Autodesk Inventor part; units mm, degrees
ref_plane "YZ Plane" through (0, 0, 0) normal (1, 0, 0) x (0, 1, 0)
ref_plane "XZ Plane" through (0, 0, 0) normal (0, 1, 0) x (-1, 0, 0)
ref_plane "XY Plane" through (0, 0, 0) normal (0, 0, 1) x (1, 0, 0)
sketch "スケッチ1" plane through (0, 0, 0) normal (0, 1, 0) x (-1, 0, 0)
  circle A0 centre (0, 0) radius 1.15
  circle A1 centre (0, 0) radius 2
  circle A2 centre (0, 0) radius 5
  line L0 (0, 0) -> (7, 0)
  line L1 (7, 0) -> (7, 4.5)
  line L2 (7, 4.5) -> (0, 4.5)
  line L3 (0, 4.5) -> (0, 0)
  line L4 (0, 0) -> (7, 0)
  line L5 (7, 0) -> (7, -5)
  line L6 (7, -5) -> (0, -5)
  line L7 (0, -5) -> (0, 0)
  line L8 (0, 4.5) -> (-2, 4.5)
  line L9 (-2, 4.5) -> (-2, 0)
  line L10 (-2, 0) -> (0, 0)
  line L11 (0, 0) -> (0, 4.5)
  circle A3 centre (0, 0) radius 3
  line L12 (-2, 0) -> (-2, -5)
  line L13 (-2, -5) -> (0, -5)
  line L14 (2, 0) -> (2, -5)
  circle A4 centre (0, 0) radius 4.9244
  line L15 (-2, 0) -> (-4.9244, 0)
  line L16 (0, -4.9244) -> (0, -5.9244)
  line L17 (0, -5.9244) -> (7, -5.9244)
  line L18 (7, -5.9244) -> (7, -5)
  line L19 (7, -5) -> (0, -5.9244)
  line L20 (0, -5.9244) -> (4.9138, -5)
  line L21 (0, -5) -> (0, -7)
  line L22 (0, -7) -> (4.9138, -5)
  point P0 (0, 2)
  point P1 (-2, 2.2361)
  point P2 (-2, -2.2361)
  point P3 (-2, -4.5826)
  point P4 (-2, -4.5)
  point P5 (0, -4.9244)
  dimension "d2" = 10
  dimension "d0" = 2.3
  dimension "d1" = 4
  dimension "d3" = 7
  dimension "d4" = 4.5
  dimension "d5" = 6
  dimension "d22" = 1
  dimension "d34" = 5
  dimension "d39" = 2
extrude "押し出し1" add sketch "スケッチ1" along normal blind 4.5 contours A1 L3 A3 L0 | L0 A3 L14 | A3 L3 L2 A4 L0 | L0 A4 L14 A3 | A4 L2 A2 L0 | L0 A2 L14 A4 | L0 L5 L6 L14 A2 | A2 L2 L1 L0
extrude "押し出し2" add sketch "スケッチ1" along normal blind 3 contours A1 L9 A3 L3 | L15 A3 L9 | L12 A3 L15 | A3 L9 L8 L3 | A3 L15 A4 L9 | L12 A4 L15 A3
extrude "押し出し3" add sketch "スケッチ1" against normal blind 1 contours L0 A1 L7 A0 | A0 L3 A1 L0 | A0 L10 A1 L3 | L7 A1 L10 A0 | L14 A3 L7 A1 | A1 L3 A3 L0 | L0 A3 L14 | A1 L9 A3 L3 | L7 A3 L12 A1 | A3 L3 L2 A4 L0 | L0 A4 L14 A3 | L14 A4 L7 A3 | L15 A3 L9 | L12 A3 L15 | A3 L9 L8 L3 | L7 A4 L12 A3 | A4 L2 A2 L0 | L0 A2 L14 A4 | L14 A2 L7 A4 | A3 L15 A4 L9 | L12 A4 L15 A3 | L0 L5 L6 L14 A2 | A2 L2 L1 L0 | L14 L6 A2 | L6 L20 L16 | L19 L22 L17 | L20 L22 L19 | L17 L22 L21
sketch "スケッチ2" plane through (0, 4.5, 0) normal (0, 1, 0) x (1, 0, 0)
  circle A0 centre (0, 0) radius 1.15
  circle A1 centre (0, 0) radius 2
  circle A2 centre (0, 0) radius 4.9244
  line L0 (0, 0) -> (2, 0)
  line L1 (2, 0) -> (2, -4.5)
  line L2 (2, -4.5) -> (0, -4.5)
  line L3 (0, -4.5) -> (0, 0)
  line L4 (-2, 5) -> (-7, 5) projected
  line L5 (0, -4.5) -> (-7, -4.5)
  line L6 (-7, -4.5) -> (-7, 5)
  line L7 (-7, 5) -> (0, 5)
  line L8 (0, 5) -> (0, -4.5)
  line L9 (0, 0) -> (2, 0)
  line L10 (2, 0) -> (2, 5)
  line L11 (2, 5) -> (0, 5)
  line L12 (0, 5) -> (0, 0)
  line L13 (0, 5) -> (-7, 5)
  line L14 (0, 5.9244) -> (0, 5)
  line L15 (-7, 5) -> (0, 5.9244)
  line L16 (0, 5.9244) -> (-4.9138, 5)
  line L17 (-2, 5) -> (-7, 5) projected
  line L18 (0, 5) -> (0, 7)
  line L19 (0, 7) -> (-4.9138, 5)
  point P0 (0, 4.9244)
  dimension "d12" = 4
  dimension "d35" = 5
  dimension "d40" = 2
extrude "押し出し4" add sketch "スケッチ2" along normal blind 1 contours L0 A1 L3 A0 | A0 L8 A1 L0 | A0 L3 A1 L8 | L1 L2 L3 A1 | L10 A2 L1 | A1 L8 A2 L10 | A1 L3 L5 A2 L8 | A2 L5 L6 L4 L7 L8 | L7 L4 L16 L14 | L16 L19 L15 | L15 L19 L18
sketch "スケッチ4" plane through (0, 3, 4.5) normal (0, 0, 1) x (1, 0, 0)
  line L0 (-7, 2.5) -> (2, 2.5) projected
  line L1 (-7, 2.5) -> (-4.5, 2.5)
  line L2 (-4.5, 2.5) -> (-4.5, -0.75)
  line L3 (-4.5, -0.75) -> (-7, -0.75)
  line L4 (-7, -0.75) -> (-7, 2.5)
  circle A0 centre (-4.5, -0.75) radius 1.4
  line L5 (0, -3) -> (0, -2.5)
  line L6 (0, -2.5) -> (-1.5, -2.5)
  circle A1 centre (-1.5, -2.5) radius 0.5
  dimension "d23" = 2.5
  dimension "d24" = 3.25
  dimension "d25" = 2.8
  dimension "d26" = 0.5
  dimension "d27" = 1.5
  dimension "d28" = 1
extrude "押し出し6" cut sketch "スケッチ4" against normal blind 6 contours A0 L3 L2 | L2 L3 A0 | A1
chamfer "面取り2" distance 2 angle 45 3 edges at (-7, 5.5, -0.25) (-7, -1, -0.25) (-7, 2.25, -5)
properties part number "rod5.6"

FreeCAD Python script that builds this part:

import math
import FreeCAD as App
import Part
import Sketcher

V = App.Vector
Q = App.Units.Quantity


def edges_at(feature, points):
    """Names of the edges that pass closest to the given points."""
    edges = feature.Shape.Edges
    near = lambda p: min(range(len(edges)), key=lambda i: edges[i].distToShape(Part.Vertex(*p))[0])
    return sorted({f"Edge{near(p) + 1}" for p in points})

doc = App.newDocument("Part")
body = doc.addObject("PartDesign::Body", "Body")

sketch1 = doc.addObject("Sketcher::SketchObject", "Sketch")
body.addObject(sketch1)
sketch1.AttachmentSupport = (doc.XZ_Plane, [""])
sketch1.MapMode = "FlatFace"
sketch1.addGeometry(Part.ArcOfCircle(Part.Circle(V(0, 0, 0), V(0, 0, 1), 2), math.radians(90), math.radians(180)), False)
sketch1.addGeometry(Part.LineSegment(V(-2, 0, 0), V(-2, -5, 0)), False)
sketch1.addGeometry(Part.LineSegment(V(-2, -5, 0), V(-7, -5, 0)), False)
sketch1.addGeometry(Part.LineSegment(V(-7, -5, 0), V(-7, 4.5, 0)), False)
sketch1.addGeometry(Part.LineSegment(V(-7, 4.5, 0), V(0, 4.5, 0)), False)
sketch1.addGeometry(Part.LineSegment(V(0, 4.5, 0), V(0, 2, 0)), False)
sketch1.addConstraint(Sketcher.Constraint("Tangent", 0, 2, 1, 1))
sketch1.addConstraint(Sketcher.Constraint("Coincident", 1, 2, 2, 1))
sketch1.addConstraint(Sketcher.Constraint("Coincident", 2, 2, 3, 1))
sketch1.addConstraint(Sketcher.Constraint("Coincident", 3, 2, 4, 1))
sketch1.addConstraint(Sketcher.Constraint("Coincident", 4, 2, 5, 1))
sketch1.addConstraint(Sketcher.Constraint("Coincident", 5, 2, 0, 1))
sketch1.addConstraint(Sketcher.Constraint("Vertical", 1))
sketch1.addConstraint(Sketcher.Constraint("Horizontal", 2))
sketch1.addConstraint(Sketcher.Constraint("Vertical", 3))
sketch1.addConstraint(Sketcher.Constraint("Horizontal", 4))
sketch1.addConstraint(Sketcher.Constraint("Vertical", 5))
sketch1.addConstraint(Sketcher.Constraint("Coincident", 0, 3, -1, 1))
sketch1.addConstraint(Sketcher.Constraint("PointOnObject", 4, 2, -2))
sketch1.addConstraint(Sketcher.Constraint("Equal", 2, 1))
sketch1.addConstraint(Sketcher.Constraint("Radius", 0, Q("2 mm")))
sketch1.addConstraint(Sketcher.Constraint("DistanceX", 2, 2, 2, 1, Q("5 mm")))
sketch1.addConstraint(Sketcher.Constraint("DistanceY", -1, 1, 3, 2, Q("4.5 mm")))
pad1 = doc.addObject("PartDesign::Pad", "Pad")
body.addObject(pad1)
pad1.Profile = sketch1
pad1.Length = 4.5
pad1.Reversed = True

sketch2 = doc.addObject("Sketcher::SketchObject", "Sketch001")
body.addObject(sketch2)
sketch2.AttachmentSupport = (doc.XZ_Plane, [""])
sketch2.MapMode = "FlatFace"
sketch2.addGeometry(Part.ArcOfCircle(Part.Circle(V(0, 0, 0), V(0, 0, 1), 2), math.radians(0), math.radians(90)), False)
sketch2.addGeometry(Part.LineSegment(V(0, 2, 0), V(0, 4.5, 0)), False)
sketch2.addGeometry(Part.LineSegment(V(0, 4.5, 0), V(2, 4.5, 0)), False)
sketch2.addGeometry(Part.ArcOfCircle(Part.Circle(V(0, 0, 0), V(0, 0, 1), 4.9), math.radians(-66), math.radians(66)), False)
sketch2.addGeometry(Part.LineSegment(V(2, -4.5, 0), V(2, 0, 0)), False)
sketch2.addConstraint(Sketcher.Constraint("Coincident", 0, 2, 1, 1))
sketch2.addConstraint(Sketcher.Constraint("Coincident", 1, 2, 2, 1))
sketch2.addConstraint(Sketcher.Constraint("Coincident", 2, 2, 3, 2))
sketch2.addConstraint(Sketcher.Constraint("Coincident", 3, 1, 4, 1))
sketch2.addConstraint(Sketcher.Constraint("Tangent", 4, 2, 0, 1))
sketch2.addConstraint(Sketcher.Constraint("Vertical", 1))
sketch2.addConstraint(Sketcher.Constraint("Horizontal", 2))
sketch2.addConstraint(Sketcher.Constraint("Vertical", 4))
sketch2.addConstraint(Sketcher.Constraint("Coincident", 0, 3, -1, 1))
sketch2.addConstraint(Sketcher.Constraint("Coincident", 3, 3, -1, 1))
sketch2.addConstraint(Sketcher.Constraint("PointOnObject", 0, 2, -2))
sketch2.addConstraint(Sketcher.Constraint("Vertical", 2, 2, 3, 1))
sketch2.addConstraint(Sketcher.Constraint("Radius", 0, Q("2 mm")))
sketch2.addConstraint(Sketcher.Constraint("DistanceY", 4, 1, 4, 2, Q("4.5 mm")))
pad2 = doc.addObject("PartDesign::Pad", "Pad001")
body.addObject(pad2)
pad2.Profile = sketch2
pad2.Length = 3
pad2.Reversed = True

sketch3 = doc.addObject("Sketcher::SketchObject", "Sketch002")
body.addObject(sketch3)
sketch3.AttachmentSupport = (doc.XZ_Plane, [""])
sketch3.MapMode = "FlatFace"
sketch3.addGeometry(Part.ArcOfCircle(Part.Circle(V(0, 0, 0), V(0, 0, 1), 4.9), math.radians(-90), math.radians(66)), False)
sketch3.addGeometry(Part.LineSegment(V(0, -4.9, 0), V(0, -7, 0)), False)
sketch3.addGeometry(Part.LineSegment(V(0, -7, 0), V(-4.9, -5, 0)), False)
sketch3.addGeometry(Part.LineSegment(V(-4.9, -5, 0), V(-7, -5, 0)), False)
sketch3.addGeometry(Part.LineSegment(V(-7, -5, 0), V(-7, 4.5, 0)), False)
sketch3.addGeometry(Part.LineSegment(V(-7, 4.5, 0), V(2, 4.5, 0)), False)
sketch3.addGeometry(Part.Circle(V(0, 0, 0), V(0, 0, 1), 1.1), False)
sketch3.addConstraint(Sketcher.Constraint("Coincident", 0, 1, 1, 1))
sketch3.addConstraint(Sketcher.Constraint("Coincident", 1, 2, 2, 1))
sketch3.addConstraint(Sketcher.Constraint("Coincident", 2, 2, 3, 1))
sketch3.addConstraint(Sketcher.Constraint("Coincident", 3, 2, 4, 1))
sketch3.addConstraint(Sketcher.Constraint("Coincident", 4, 2, 5, 1))
sketch3.addConstraint(Sketcher.Constraint("Coincident", 5, 2, 0, 2))
sketch3.addConstraint(Sketcher.Constraint("Vertical", 1))
sketch3.addConstraint(Sketcher.Constraint("Horizontal", 3))
sketch3.addConstraint(Sketcher.Constraint("Vertical", 4))
sketch3.addConstraint(Sketcher.Constraint("Horizontal", 5))
sketch3.addConstraint(Sketcher.Constraint("Coincident", 0, 3, -1, 1))
sketch3.addConstraint(Sketcher.Constraint("Coincident", 6, 3, -1, 1))
sketch3.addConstraint(Sketcher.Constraint("PointOnObject", 0, 1, -2))
sketch3.addConstraint(Sketcher.Constraint("Diameter", 6, Q("2.3 mm")))
sketch3.addConstraint(Sketcher.Constraint("DistanceY", 1, 2, -1, 1, Q("7 mm")))
sketch3.addConstraint(Sketcher.Constraint("DistanceY", 2, 2, -1, 1, Q("5 mm")))
sketch3.addConstraint(Sketcher.Constraint("DistanceX", 3, 2, -1, 1, Q("7 mm")))
sketch3.addConstraint(Sketcher.Constraint("DistanceX", -1, 1, 5, 2, Q("2 mm")))
sketch3.addConstraint(Sketcher.Constraint("DistanceY", -1, 1, 4, 2, Q("4.5 mm")))
sketch3.addConstraint(Sketcher.Constraint("DistanceX", 3, 2, 3, 1, Q("2.0862 mm")))
pad3 = doc.addObject("PartDesign::Pad", "Pad002")
body.addObject(pad3)
pad3.Profile = sketch3
pad3.Length = 1

sketch4 = doc.addObject("Sketcher::SketchObject", "Sketch003")
body.addObject(sketch4)
sketch4.AttachmentSupport = (doc.XZ_Plane, [""])
sketch4.MapMode = "FlatFace"
sketch4.AttachmentOffset = App.Placement(V(0, 0, -4.5), App.Rotation())
sketch4.addGeometry(Part.ArcOfCircle(Part.Circle(V(0, 0, 0), V(0, 0, 1), 4.9), math.radians(-90), math.radians(66)), False)
sketch4.addGeometry(Part.LineSegment(V(0, -4.9, 0), V(0, -7, 0)), False)
sketch4.addGeometry(Part.LineSegment(V(0, -7, 0), V(-4.9, -5, 0)), False)
sketch4.addGeometry(Part.LineSegment(V(-4.9, -5, 0), V(-7, -5, 0)), False)
sketch4.addGeometry(Part.LineSegment(V(-7, -5, 0), V(-7, 4.5, 0)), False)
sketch4.addGeometry(Part.LineSegment(V(-7, 4.5, 0), V(2, 4.5, 0)), False)
sketch4.addGeometry(Part.Circle(V(0, 0, 0), V(0, 0, 1), 1.1), False)
sketch4.addConstraint(Sketcher.Constraint("Coincident", 0, 1, 1, 1))
sketch4.addConstraint(Sketcher.Constraint("Coincident", 1, 2, 2, 1))
sketch4.addConstraint(Sketcher.Constraint("Coincident", 2, 2, 3, 1))
sketch4.addConstraint(Sketcher.Constraint("Coincident", 3, 2, 4, 1))
sketch4.addConstraint(Sketcher.Constraint("Coincident", 4, 2, 5, 1))
sketch4.addConstraint(Sketcher.Constraint("Coincident", 5, 2, 0, 2))
sketch4.addConstraint(Sketcher.Constraint("Vertical", 1))
sketch4.addConstraint(Sketcher.Constraint("Horizontal", 3))
sketch4.addConstraint(Sketcher.Constraint("Vertical", 4))
sketch4.addConstraint(Sketcher.Constraint("Horizontal", 5))
sketch4.addConstraint(Sketcher.Constraint("Coincident", 0, 3, -1, 1))
sketch4.addConstraint(Sketcher.Constraint("Coincident", 6, 3, -1, 1))
sketch4.addConstraint(Sketcher.Constraint("PointOnObject", 0, 1, -2))
sketch4.addConstraint(Sketcher.Constraint("DistanceY", 2, 2, -1, 1, Q("5 mm")))
sketch4.addConstraint(Sketcher.Constraint("DistanceX", -1, 1, 5, 2, Q("2 mm")))
sketch4.addConstraint(Sketcher.Constraint("DistanceY", 1, 2, 2, 2, Q("2 mm")))
sketch4.addConstraint(Sketcher.Constraint("Diameter", 6, Q("2.3 mm")))
sketch4.addConstraint(Sketcher.Constraint("DistanceX", 5, 1, 5, 2, Q("9 mm")))
sketch4.addConstraint(Sketcher.Constraint("DistanceY", 4, 1, 4, 2, Q("9.5 mm")))
sketch4.addConstraint(Sketcher.Constraint("DistanceX", 3, 2, 3, 1, Q("2.0862 mm")))
pad4 = doc.addObject("PartDesign::Pad", "Pad003")
body.addObject(pad4)
pad4.Profile = sketch4
pad4.Length = 1
pad4.Reversed = True

sketch5 = doc.addObject("Sketcher::SketchObject", "Sketch004")
body.addObject(sketch5)
sketch5.AttachmentSupport = (doc.XY_Plane, [""])
sketch5.MapMode = "FlatFace"
sketch5.AttachmentOffset = App.Placement(V(0, 0, 4.5), App.Rotation())
sketch5.addGeometry(Part.Circle(V(-4.5, 2.2, 0), V(0, 0, 1), 1.4), False)
sketch5.addGeometry(Part.Circle(V(-1.5, 0.5, 0), V(0, 0, 1), 0.5), False)
sketch5.addConstraint(Sketcher.Constraint("Diameter", 1, Q("1 mm")))
sketch5.addConstraint(Sketcher.Constraint("Diameter", 0, Q("2.8 mm")))
sketch5.addConstraint(Sketcher.Constraint("DistanceX", 1, 3, -1, 1, Q("1.5 mm")))
sketch5.addConstraint(Sketcher.Constraint("DistanceY", -1, 1, 1, 3, Q("0.5 mm")))
sketch5.addConstraint(Sketcher.Constraint("DistanceX", 0, 3, 1, 3, Q("3 mm")))
sketch5.addConstraint(Sketcher.Constraint("DistanceY", -1, 1, 0, 3, Q("2.25 mm")))
pocket1 = doc.addObject("PartDesign::Pocket", "Pocket")
body.addObject(pocket1)
pocket1.Profile = sketch5
pocket1.Length = 6
doc.recompute()

chamfer = doc.addObject("PartDesign::Chamfer", "Chamfer")
body.addObject(chamfer)
chamfer.Base = (pocket1, edges_at(pocket1, [(-7, 5.5, -0.25), (-7, -1, -0.25), (-7, 2.25, -5)]))
chamfer.Size = 2

doc.recompute()
